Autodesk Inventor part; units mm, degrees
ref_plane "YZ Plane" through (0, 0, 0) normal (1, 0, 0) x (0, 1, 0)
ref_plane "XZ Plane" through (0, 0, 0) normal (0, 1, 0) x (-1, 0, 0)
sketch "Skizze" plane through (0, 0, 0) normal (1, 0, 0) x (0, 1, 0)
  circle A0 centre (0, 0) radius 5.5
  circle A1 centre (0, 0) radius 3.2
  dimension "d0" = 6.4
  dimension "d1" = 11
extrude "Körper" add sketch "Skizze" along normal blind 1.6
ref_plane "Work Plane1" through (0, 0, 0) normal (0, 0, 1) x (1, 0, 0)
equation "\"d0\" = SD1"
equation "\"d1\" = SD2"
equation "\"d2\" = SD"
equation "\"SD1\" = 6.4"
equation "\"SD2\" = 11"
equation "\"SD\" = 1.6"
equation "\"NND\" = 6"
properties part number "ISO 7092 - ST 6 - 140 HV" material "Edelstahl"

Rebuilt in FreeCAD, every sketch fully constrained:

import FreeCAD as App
import Part
import Sketcher
Q = App.Units.Quantity

doc = App.newDocument("Part")
params = doc.addObject("Spreadsheet::Sheet", "Params")
for row, (alias, value) in enumerate([
    ("sketch1_diameter", "11 mm"),
    ("sketch1_diameter2", "6.4 mm"),
    ("pad1_length", "1.6 mm"),
], start=1):
    params.set(f"A{row}", alias)
    params.set(f"B{row}", "=" + value)
    params.setAlias(f"B{row}", alias)

body = doc.addObject("PartDesign::Body", "Body")

# Sketch on YZ plane
sketch1 = body.newObject("Sketcher::SketchObject", "Sketch")
sketch1.AttachmentSupport = (doc.getObject("YZ_Plane"), [""])
sketch1.MapMode = "FlatFace"
sketch1.addGeometry(Part.Circle(App.Vector(0, 0, 0), App.Vector(0, 0, 1), 5.5), False)
sketch1.addGeometry(Part.Circle(App.Vector(0, 0, 0), App.Vector(0, 0, 1), 3.2), False)
sketch1.addConstraint(Sketcher.Constraint("Coincident", 0, 3, -1, 1))
sketch1.addConstraint(Sketcher.Constraint("Coincident", 1, 3, -1, 1))
sketch1.addConstraint(Sketcher.Constraint("Diameter", 0, Q("11 mm")))
sketch1.addConstraint(Sketcher.Constraint("Diameter", 1, Q("6.4 mm")))
sketch1.setExpression("Constraints[2]", "Params.sketch1_diameter")
sketch1.setExpression("Constraints[3]", "Params.sketch1_diameter2")
pad1 = body.newObject("PartDesign::Pad", "Pad")
pad1.Profile = sketch1
pad1.setExpression("Length", "Params.pad1_length")

doc.recompute()
